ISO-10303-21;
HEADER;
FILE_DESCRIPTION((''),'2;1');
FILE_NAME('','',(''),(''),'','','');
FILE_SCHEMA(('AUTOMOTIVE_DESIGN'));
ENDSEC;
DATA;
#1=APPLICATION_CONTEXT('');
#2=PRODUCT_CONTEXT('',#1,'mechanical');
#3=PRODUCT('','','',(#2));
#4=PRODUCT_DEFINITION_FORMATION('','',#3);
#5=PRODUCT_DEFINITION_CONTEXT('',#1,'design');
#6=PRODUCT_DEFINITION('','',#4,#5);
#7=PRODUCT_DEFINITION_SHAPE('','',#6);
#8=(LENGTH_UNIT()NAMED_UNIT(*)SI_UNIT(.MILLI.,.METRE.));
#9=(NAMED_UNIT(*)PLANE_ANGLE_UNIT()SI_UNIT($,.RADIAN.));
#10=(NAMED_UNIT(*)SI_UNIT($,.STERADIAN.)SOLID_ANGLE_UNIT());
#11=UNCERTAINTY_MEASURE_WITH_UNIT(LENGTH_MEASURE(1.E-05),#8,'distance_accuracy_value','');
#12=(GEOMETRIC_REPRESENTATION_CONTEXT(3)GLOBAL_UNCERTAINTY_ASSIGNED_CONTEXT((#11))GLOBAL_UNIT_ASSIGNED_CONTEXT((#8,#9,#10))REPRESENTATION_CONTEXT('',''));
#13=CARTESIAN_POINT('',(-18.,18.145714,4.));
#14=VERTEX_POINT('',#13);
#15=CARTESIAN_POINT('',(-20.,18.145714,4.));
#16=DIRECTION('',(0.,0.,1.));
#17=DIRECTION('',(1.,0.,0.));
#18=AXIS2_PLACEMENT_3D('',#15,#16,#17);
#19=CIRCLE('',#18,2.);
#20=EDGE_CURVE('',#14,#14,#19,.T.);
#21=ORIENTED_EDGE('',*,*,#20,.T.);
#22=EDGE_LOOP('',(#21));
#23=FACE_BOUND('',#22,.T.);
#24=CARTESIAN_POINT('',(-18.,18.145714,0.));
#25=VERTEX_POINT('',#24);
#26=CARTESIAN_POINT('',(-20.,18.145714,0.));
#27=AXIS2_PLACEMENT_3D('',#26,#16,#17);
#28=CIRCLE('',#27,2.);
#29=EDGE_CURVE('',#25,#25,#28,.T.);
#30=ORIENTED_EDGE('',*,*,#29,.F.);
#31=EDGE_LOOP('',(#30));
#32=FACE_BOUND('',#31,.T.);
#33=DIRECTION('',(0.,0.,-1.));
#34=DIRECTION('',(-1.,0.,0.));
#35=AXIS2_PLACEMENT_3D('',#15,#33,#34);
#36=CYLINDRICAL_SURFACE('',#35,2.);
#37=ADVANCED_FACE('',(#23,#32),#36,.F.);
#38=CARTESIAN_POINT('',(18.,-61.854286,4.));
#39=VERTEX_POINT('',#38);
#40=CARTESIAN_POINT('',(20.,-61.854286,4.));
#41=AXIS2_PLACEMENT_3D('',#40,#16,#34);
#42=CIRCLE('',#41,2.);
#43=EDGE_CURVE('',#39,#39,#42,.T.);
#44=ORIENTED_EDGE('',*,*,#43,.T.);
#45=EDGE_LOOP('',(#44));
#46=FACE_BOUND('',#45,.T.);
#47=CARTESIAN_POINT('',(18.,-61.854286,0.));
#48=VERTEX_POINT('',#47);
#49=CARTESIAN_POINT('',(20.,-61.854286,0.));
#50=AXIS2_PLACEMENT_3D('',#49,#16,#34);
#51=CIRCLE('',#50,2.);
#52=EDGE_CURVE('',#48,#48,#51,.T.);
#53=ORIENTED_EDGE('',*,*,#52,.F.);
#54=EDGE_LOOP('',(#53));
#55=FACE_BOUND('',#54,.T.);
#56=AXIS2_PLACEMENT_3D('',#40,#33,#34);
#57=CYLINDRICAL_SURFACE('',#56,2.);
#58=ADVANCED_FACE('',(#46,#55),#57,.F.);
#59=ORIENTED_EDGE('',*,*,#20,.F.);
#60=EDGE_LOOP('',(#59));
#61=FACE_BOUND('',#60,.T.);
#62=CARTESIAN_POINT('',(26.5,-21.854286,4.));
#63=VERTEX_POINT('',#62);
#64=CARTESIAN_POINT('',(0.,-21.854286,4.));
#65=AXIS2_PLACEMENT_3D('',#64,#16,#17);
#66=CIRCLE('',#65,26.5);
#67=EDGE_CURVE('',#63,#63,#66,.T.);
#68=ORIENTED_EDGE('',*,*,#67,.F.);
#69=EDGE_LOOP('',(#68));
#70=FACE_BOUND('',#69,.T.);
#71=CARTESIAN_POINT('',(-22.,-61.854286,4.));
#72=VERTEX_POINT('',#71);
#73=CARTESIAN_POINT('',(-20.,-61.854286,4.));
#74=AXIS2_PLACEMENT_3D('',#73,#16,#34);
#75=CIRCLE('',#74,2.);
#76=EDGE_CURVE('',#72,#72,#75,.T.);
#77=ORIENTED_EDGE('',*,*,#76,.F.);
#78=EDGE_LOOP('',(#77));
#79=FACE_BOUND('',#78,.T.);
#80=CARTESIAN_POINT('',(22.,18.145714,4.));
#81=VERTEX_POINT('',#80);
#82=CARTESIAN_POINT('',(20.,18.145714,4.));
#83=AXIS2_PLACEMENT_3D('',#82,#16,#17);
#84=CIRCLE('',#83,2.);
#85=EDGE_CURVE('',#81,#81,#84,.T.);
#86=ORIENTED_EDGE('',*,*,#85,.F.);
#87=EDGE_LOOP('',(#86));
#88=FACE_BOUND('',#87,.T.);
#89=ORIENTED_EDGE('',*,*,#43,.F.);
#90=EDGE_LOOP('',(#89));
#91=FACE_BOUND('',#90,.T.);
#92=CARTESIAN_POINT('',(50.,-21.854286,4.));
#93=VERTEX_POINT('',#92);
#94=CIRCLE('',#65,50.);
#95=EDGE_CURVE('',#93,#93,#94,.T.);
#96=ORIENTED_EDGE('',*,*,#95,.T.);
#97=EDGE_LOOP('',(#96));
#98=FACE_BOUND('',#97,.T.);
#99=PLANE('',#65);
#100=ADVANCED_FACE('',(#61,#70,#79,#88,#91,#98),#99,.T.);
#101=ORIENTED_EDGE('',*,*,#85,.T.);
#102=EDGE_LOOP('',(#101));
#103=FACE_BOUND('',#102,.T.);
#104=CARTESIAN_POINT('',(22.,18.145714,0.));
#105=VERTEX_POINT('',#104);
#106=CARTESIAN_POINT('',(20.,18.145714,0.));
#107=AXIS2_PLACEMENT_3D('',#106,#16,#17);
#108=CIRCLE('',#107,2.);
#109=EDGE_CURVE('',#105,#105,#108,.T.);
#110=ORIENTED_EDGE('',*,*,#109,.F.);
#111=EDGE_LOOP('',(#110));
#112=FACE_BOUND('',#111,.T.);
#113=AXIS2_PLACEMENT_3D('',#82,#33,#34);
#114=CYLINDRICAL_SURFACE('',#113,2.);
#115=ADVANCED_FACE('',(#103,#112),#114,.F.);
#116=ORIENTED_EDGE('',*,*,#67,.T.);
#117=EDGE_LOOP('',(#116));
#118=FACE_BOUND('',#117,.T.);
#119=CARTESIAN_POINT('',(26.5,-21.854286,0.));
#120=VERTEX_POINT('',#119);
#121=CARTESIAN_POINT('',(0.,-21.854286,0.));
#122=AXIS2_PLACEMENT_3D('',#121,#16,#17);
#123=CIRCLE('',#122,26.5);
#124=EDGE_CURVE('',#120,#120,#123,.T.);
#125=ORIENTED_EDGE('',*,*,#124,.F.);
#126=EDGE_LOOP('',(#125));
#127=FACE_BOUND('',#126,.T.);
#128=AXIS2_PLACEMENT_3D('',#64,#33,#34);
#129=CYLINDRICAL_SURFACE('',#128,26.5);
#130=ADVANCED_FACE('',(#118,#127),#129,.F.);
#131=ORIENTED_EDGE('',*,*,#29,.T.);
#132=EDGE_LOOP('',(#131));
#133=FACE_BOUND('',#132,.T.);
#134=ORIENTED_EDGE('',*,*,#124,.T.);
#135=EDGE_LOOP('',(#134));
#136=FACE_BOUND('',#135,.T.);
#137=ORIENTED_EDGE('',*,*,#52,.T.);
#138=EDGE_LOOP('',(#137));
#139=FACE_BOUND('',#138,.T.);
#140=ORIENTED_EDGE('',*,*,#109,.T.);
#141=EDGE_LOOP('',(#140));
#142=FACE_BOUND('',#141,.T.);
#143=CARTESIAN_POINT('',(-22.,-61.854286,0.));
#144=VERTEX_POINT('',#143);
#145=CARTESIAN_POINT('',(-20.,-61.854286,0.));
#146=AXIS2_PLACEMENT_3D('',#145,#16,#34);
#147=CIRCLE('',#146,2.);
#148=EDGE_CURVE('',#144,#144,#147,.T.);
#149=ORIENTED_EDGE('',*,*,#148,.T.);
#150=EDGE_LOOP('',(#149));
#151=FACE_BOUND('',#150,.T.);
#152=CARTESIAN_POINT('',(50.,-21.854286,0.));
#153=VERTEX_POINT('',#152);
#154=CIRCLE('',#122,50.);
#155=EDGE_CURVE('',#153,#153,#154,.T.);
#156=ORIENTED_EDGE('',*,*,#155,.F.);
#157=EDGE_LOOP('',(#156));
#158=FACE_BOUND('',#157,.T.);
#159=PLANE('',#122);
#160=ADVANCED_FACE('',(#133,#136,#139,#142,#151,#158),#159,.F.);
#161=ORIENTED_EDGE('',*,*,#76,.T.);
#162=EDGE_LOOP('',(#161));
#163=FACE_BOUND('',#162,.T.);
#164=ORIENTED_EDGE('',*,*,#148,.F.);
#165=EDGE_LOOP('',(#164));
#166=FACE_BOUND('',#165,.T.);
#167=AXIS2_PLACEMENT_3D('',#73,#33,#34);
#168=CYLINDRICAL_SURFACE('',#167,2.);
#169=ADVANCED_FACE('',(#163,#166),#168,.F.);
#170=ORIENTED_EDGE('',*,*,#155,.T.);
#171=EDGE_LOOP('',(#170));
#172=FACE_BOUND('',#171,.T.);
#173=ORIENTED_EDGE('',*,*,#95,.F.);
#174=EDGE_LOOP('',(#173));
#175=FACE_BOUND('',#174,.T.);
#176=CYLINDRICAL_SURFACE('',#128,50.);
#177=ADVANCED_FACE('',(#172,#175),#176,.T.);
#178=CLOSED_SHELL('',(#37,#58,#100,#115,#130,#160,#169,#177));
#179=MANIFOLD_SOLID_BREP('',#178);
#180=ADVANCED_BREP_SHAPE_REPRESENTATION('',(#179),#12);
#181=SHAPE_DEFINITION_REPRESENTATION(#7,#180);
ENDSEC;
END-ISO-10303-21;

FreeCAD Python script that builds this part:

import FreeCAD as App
import Part
import Sketcher

V = App.Vector
Q = App.Units.Quantity

doc = App.newDocument("Part")
params = doc.addObject("Spreadsheet::Sheet", "Params")
for row, (alias, value) in enumerate([
    ("sketch1_diameter", "100 mm"),
    ("sketch1_diameter2", "4 mm"),
    ("sketch1_diameter3", "53 mm"),
    ("pad1_length", "4 mm"),
], start=1):
    params.set(f"A{row}", alias)
    params.set(f"B{row}", "=" + value)
    params.setAlias(f"B{row}", alias)

body = doc.addObject("PartDesign::Body", "Body")

# Sketch on XY plane
sketch1 = body.newObject("Sketcher::SketchObject", "Sketch")
sketch1.AttachmentSupport = (doc.getObject("XY_Plane"), [""])
sketch1.MapMode = "FlatFace"
sketch1.addGeometry(Part.Circle(V(0, -21.9, 0), V(0, 0, 1), 50), False)
sketch1.addGeometry(Part.Circle(V(-20, -61.9, 0), V(0, 0, 1), 2), False)
sketch1.addGeometry(Part.Circle(V(20, -61.9, 0), V(0, 0, 1), 2), False)
sketch1.addGeometry(Part.Circle(V(-20, 18.1, 0), V(0, 0, 1), 2), False)
sketch1.addGeometry(Part.Circle(V(0, -21.9, 0), V(0, 0, 1), 26.5), False)
sketch1.addGeometry(Part.Circle(V(20, 18.1, 0), V(0, 0, 1), 2), False)
sketch1.addConstraint(Sketcher.Constraint("Coincident", 4, 3, 0, 3))
sketch1.addConstraint(Sketcher.Constraint("Equal", 1, 2))
sketch1.addConstraint(Sketcher.Constraint("Equal", 2, 3))
sketch1.addConstraint(Sketcher.Constraint("Equal", 3, 5))
sketch1.addConstraint(Sketcher.Constraint("Symmetric", 1, 3, 2, 3, -2))
sketch1.addConstraint(Sketcher.Constraint("Symmetric", 3, 3, 5, 3, -2))
sketch1.addConstraint(Sketcher.Constraint("PointOnObject", 0, 3, -2))
sketch1.addConstraint(Sketcher.Constraint("Vertical", 1, 3, 3, 3))
sketch1.addConstraint(Sketcher.Constraint("Diameter", 0, Q("100 mm")))
sketch1.addConstraint(Sketcher.Constraint("Diameter", 1, Q("4 mm")))
sketch1.addConstraint(Sketcher.Constraint("Diameter", 4, Q("53 mm")))
sketch1.addConstraint(Sketcher.Constraint("DistanceX", 1, 3, -1, 1, Q("20 mm")))
sketch1.addConstraint(Sketcher.Constraint("DistanceY", 1, 3, 0, 3, Q("40 mm")))
sketch1.addConstraint(Sketcher.Constraint("DistanceY", 0, 3, 3, 3, Q("40 mm")))
sketch1.addConstraint(Sketcher.Constraint("DistanceY", 0, 3, -1, 1, Q("21.854286 mm")))
sketch1.setExpression("Constraints[8]", "Params.sketch1_diameter")
sketch1.setExpression("Constraints[9]", "Params.sketch1_diameter2")
sketch1.setExpression("Constraints[10]", "Params.sketch1_diameter3")
pad1 = body.newObject("PartDesign::Pad", "Pad")
pad1.Profile = sketch1
pad1.setExpression("Length", "Params.pad1_length")

doc.recompute()
